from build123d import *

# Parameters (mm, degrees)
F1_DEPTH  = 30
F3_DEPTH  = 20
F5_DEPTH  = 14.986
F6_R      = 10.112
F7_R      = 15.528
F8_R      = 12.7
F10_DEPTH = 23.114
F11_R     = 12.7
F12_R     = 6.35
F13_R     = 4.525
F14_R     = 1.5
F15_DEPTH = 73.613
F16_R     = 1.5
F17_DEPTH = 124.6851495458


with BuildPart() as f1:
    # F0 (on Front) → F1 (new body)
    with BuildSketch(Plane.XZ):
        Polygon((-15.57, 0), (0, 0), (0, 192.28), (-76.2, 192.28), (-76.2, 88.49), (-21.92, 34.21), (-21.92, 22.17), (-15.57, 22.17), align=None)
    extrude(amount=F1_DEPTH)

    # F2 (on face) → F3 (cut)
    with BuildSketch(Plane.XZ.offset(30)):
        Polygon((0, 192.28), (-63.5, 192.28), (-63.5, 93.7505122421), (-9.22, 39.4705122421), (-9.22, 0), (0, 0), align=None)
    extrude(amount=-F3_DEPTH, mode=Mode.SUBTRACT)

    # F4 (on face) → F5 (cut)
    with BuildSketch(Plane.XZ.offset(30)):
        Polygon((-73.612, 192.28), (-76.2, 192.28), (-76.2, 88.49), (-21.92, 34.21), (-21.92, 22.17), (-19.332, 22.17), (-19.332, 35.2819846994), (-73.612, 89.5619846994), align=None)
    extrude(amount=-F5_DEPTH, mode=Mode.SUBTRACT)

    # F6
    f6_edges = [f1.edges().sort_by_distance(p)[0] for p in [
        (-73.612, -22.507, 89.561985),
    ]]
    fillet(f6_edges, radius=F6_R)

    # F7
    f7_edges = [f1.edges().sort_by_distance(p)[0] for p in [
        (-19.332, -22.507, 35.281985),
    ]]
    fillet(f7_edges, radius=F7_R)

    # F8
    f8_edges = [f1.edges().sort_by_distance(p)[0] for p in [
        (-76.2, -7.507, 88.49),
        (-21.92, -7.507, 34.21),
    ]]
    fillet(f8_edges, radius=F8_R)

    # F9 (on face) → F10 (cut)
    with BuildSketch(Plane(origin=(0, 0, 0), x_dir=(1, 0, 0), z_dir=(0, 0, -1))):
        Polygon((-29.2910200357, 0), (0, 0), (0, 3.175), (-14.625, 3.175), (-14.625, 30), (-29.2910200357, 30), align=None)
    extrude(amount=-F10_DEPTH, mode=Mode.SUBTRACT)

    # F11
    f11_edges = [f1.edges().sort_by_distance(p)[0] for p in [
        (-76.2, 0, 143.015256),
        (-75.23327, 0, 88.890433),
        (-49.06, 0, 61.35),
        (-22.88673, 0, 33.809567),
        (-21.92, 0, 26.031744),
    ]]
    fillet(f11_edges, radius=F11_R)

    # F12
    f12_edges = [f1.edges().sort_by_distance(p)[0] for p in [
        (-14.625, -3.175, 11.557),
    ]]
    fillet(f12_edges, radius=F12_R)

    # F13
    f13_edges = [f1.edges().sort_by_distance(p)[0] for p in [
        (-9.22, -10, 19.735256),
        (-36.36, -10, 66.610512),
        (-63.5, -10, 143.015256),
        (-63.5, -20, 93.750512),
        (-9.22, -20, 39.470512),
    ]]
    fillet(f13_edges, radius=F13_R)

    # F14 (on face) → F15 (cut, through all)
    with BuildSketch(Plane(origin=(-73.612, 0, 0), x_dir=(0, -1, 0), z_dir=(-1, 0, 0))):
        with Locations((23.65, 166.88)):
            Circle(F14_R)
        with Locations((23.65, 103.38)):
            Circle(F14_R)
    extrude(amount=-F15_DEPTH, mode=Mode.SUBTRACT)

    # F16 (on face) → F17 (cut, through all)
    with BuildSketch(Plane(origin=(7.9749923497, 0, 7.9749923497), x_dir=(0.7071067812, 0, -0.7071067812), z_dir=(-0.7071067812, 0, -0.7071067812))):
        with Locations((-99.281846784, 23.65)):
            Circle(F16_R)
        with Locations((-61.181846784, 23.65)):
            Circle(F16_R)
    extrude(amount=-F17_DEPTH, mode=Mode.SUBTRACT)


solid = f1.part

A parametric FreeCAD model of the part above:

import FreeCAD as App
import Part
import Sketcher
Q = App.Units.Quantity


def edges_at(feature, points):
    """Names of the edges that pass closest to the given points."""
    edges = feature.Shape.Edges
    near = lambda p: min(range(len(edges)), key=lambda i: edges[i].distToShape(Part.Vertex(*p))[0])
    return sorted({f"Edge{near(p) + 1}" for p in points})

doc = App.newDocument("Part")
body = doc.addObject("PartDesign::Body", "Body")

sketch1 = doc.addObject("Sketcher::SketchObject", "Sketch")
body.addObject(sketch1)
sketch1.AttachmentSupport = (doc.XZ_Plane, [""])
sketch1.MapMode = "FlatFace"
sketch1.addGeometry(Part.LineSegment(App.Vector(-15.57, 0, 0), App.Vector(0, 0, 0)), False)
sketch1.addGeometry(Part.LineSegment(App.Vector(0, 0, 0), App.Vector(0, 192.28, 0)), False)
sketch1.addGeometry(Part.LineSegment(App.Vector(0, 192.28, 0), App.Vector(-76.2, 192.28, 0)), False)
sketch1.addGeometry(Part.LineSegment(App.Vector(-76.2, 192.28, 0), App.Vector(-76.2, 88.49, 0)), False)
sketch1.addGeometry(Part.LineSegment(App.Vector(-76.2, 88.49, 0), App.Vector(-21.92, 34.21, 0)), False)
sketch1.addGeometry(Part.LineSegment(App.Vector(-21.92, 34.21, 0), App.Vector(-21.92, 22.17, 0)), False)
sketch1.addGeometry(Part.LineSegment(App.Vector(-21.92, 22.17, 0), App.Vector(-15.57, 22.17, 0)), False)
sketch1.addGeometry(Part.LineSegment(App.Vector(-15.57, 22.17, 0), App.Vector(-15.57, 0, 0)), False)
sketch1.addConstraint(Sketcher.Constraint("Coincident", 0, 2, 1, 1))
sketch1.addConstraint(Sketcher.Constraint("Coincident", 1, 2, 2, 1))
sketch1.addConstraint(Sketcher.Constraint("Coincident", 2, 2, 3, 1))
sketch1.addConstraint(Sketcher.Constraint("Coincident", 3, 2, 4, 1))
sketch1.addConstraint(Sketcher.Constraint("Coincident", 4, 2, 5, 1))
sketch1.addConstraint(Sketcher.Constraint("Coincident", 5, 2, 6, 1))
sketch1.addConstraint(Sketcher.Constraint("Coincident", 6, 2, 7, 1))
sketch1.addConstraint(Sketcher.Constraint("Coincident", 7, 2, 0, 1))
sketch1.addConstraint(Sketcher.Constraint("Horizontal", 0))
sketch1.addConstraint(Sketcher.Constraint("Vertical", 1))
sketch1.addConstraint(Sketcher.Constraint("Horizontal", 2))
sketch1.addConstraint(Sketcher.Constraint("Vertical", 3))
sketch1.addConstraint(Sketcher.Constraint("Vertical", 5))
sketch1.addConstraint(Sketcher.Constraint("Horizontal", 6))
sketch1.addConstraint(Sketcher.Constraint("Vertical", 7))
sketch1.addConstraint(Sketcher.Constraint("Coincident", 0, 2, -1, 1))
sketch1.addConstraint(Sketcher.Constraint("DistanceX", 2, 2, 2, 1, Q("3 in")))
sketch1.addConstraint(Sketcher.Constraint("Angle", 4, Q("-45 deg")))
sketch1.addConstraint(Sketcher.Constraint("DistanceX", 6, 1, 6, 2, Q("0.25 in")))
sketch1.addConstraint(Sketcher.Constraint("DistanceX", 0, 1, 0, 2, Q("15.57 mm")))
sketch1.addConstraint(Sketcher.Constraint("DistanceY", 1, 1, 1, 2, Q("192.28 mm")))
sketch1.addConstraint(Sketcher.Constraint("DistanceY", 3, 2, 3, 1, Q("103.79 mm")))
sketch1.addConstraint(Sketcher.Constraint("DistanceY", 5, 2, 5, 1, Q("12.04 mm")))
pad1 = doc.addObject("PartDesign::Pad", "Pad")
body.addObject(pad1)
pad1.Profile = sketch1
pad1.Length = 30

sketch2 = doc.addObject("Sketcher::SketchObject", "Sketch001")
body.addObject(sketch2)
sketch2.AttachmentSupport = (doc.XZ_Plane, [""])
sketch2.MapMode = "FlatFace"
sketch2.AttachmentOffset = App.Placement(App.Vector(0, 0, 30), App.Rotation())
sketch2.addGeometry(Part.LineSegment(App.Vector(0, 192.28, 0), App.Vector(-63.5, 192.28, 0)), False)
sketch2.addGeometry(Part.LineSegment(App.Vector(-63.5, 192.28, 0), App.Vector(-63.5, 93.750512, 0)), False)
sketch2.addGeometry(Part.LineSegment(App.Vector(-63.5, 93.750512, 0), App.Vector(-9.22, 39.470512, 0)), False)
sketch2.addGeometry(Part.LineSegment(App.Vector(-9.22, 39.470512, 0), App.Vector(-9.22, 0, 0)), False)
sketch2.addGeometry(Part.LineSegment(App.Vector(-9.22, 0, 0), App.Vector(0, 0, 0)), False)
sketch2.addGeometry(Part.LineSegment(App.Vector(0, 0, 0), App.Vector(0, 192.28, 0)), False)
sketch2.addConstraint(Sketcher.Constraint("Coincident", 0, 2, 1, 1))
sketch2.addConstraint(Sketcher.Constraint("Coincident", 1, 2, 2, 1))
sketch2.addConstraint(Sketcher.Constraint("Coincident", 2, 2, 3, 1))
sketch2.addConstraint(Sketcher.Constraint("Coincident", 3, 2, 4, 1))
sketch2.addConstraint(Sketcher.Constraint("Coincident", 4, 2, 5, 1))
sketch2.addConstraint(Sketcher.Constraint("Coincident", 5, 2, 0, 1))
sketch2.addConstraint(Sketcher.Constraint("Horizontal", 0))
sketch2.addConstraint(Sketcher.Constraint("Vertical", 1))
sketch2.addConstraint(Sketcher.Constraint("Vertical", 3))
sketch2.addConstraint(Sketcher.Constraint("Horizontal", 4))
sketch2.addConstraint(Sketcher.Constraint("Vertical", 5))
sketch2.addConstraint(Sketcher.Constraint("Coincident", 4, 2, -1, 1))
sketch2.addConstraint(Sketcher.Constraint("DistanceX", 0, 2, 0, 1, Q("2.5 in")))
sketch2.addConstraint(Sketcher.Constraint("Angle", 2, Q("-45 deg")))
sketch2.addConstraint(Sketcher.Constraint("DistanceX", 4, 1, 4, 2, Q("9.22 mm")))
sketch2.addConstraint(Sketcher.Constraint("DistanceY", 5, 1, 5, 2, Q("192.28 mm")))
sketch2.addConstraint(Sketcher.Constraint("DistanceY", 1, 2, 1, 1, Q("98.529488 mm")))
pocket1 = doc.addObject("PartDesign::Pocket", "Pocket")
body.addObject(pocket1)
pocket1.Profile = sketch2
pocket1.Length = 20

sketch3 = doc.addObject("Sketcher::SketchObject", "Sketch002")
body.addObject(sketch3)
sketch3.AttachmentSupport = (doc.XZ_Plane, [""])
sketch3.MapMode = "FlatFace"
sketch3.AttachmentOffset = App.Placement(App.Vector(0, 0, 30), App.Rotation())
sketch3.addGeometry(Part.LineSegment(App.Vector(-73.612, 192.28, 0), App.Vector(-76.2, 192.28, 0)), False)
sketch3.addGeometry(Part.LineSegment(App.Vector(-76.2, 192.28, 0), App.Vector(-76.2, 88.49, 0)), False)
sketch3.addGeometry(Part.LineSegment(App.Vector(-76.2, 88.49, 0), App.Vector(-21.92, 34.21, 0)), False)
sketch3.addGeometry(Part.LineSegment(App.Vector(-21.92, 34.21, 0), App.Vector(-21.92, 22.17, 0)), False)
sketch3.addGeometry(Part.LineSegment(App.Vector(-21.92, 22.17, 0), App.Vector(-19.332, 22.17, 0)), False)
sketch3.addGeometry(Part.LineSegment(App.Vector(-19.332, 22.17, 0), App.Vector(-19.332, 35.281985, 0)), False)
sketch3.addGeometry(Part.LineSegment(App.Vector(-19.332, 35.281985, 0), App.Vector(-73.612, 89.561985, 0)), False)
sketch3.addGeometry(Part.LineSegment(App.Vector(-73.612, 89.561985, 0), App.Vector(-73.612, 192.28, 0)), False)
sketch3.addConstraint(Sketcher.Constraint("Coincident", 0, 2, 1, 1))
sketch3.addConstraint(Sketcher.Constraint("Coincident", 1, 2, 2, 1))
sketch3.addConstraint(Sketcher.Constraint("Coincident", 2, 2, 3, 1))
sketch3.addConstraint(Sketcher.Constraint("Coincident", 3, 2, 4, 1))
sketch3.addConstraint(Sketcher.Constraint("Coincident", 4, 2, 5, 1))
sketch3.addConstraint(Sketcher.Constraint("Coincident", 5, 2, 6, 1))
sketch3.addConstraint(Sketcher.Constraint("Coincident", 6, 2, 7, 1))
sketch3.addConstraint(Sketcher.Constraint("Coincident", 7, 2, 0, 1))
sketch3.addConstraint(Sketcher.Constraint("Horizontal", 0))
sketch3.addConstraint(Sketcher.Constraint("Vertical", 1))
sketch3.addConstraint(Sketcher.Constraint("Vertical", 3))
sketch3.addConstraint(Sketcher.Constraint("Horizontal", 4))
sketch3.addConstraint(Sketcher.Constraint("Vertical", 5))
sketch3.addConstraint(Sketcher.Constraint("Vertical", 7))
sketch3.addConstraint(Sketcher.Constraint("Parallel", 2, 6))
sketch3.addConstraint(Sketcher.Constraint("Equal", 0, 4))
sketch3.addConstraint(Sketcher.Constraint("DistanceX", 0, 2, -1, 1, Q("3 in")))
sketch3.addConstraint(Sketcher.Constraint("Angle", 2, Q("-45 deg")))
sketch3.addConstraint(Sketcher.Constraint("DistanceX", 0, 2, 0, 1, Q("2.588 mm")))
sketch3.addConstraint(Sketcher.Constraint("DistanceY", 1, 2, 1, 1, Q("103.79 mm")))
sketch3.addConstraint(Sketcher.Constraint("DistanceY", 3, 2, 3, 1, Q("12.04 mm")))
sketch3.addConstraint(Sketcher.Constraint("DistanceY", -1, 1, 0, 2, Q("192.28 mm")))
sketch3.addConstraint(Sketcher.Constraint("DistanceX", 2, 2, -1, 1, Q("21.92 mm")))
sketch3.addConstraint(Sketcher.Constraint("DistanceY", 5, 1, 5, 2, Q("13.111985 mm")))
pocket2 = doc.addObject("PartDesign::Pocket", "Pocket001")
body.addObject(pocket2)
pocket2.Profile = sketch3
pocket2.Length = Q("0.59 in")
doc.recompute()

fillet = doc.addObject("PartDesign::Fillet", "Fillet")
body.addObject(fillet)
fillet.Base = (pocket2, edges_at(pocket2, [(-73.612, -22.507, 89.562)]))
fillet.Radius = 10.112
doc.recompute()

fillet2 = doc.addObject("PartDesign::Fillet", "Fillet001")
body.addObject(fillet2)
fillet2.Base = (fillet, edges_at(fillet, [(-19.332, -22.507, 35.282)]))
fillet2.Radius = 15.528
doc.recompute()

fillet3 = doc.addObject("PartDesign::Fillet", "Fillet002")
body.addObject(fillet3)
fillet3.Base = (fillet2, edges_at(fillet2, [(-76.2, -7.507, 88.49), (-21.92, -7.507, 34.21)]))
fillet3.Radius = Q("0.5 in")

sketch4 = doc.addObject("Sketcher::SketchObject", "Sketch003")
body.addObject(sketch4)
sketch4.AttachmentSupport = (doc.XY_Plane, [""])
sketch4.MapMode = "FlatFace"
sketch4.addGeometry(Part.LineSegment(App.Vector(-29.29102, 0, 0), App.Vector(0, 0, 0)), False)
sketch4.addGeometry(Part.LineSegment(App.Vector(0, 0, 0), App.Vector(0, -3.175, 0)), False)
sketch4.addGeometry(Part.LineSegment(App.Vector(0, -3.175, 0), App.Vector(-14.625, -3.175, 0)), False)
sketch4.addGeometry(Part.LineSegment(App.Vector(-14.625, -3.175, 0), App.Vector(-14.625, -30, 0)), False)
sketch4.addGeometry(Part.LineSegment(App.Vector(-14.625, -30, 0), App.Vector(-29.29102, -30, 0)), False)
sketch4.addGeometry(Part.LineSegment(App.Vector(-29.29102, -30, 0), App.Vector(-29.29102, 0, 0)), False)
sketch4.addConstraint(Sketcher.Constraint("Coincident", 0, 2, 1, 1))
sketch4.addConstraint(Sketcher.Constraint("Coincident", 1, 2, 2, 1))
sketch4.addConstraint(Sketcher.Constraint("Coincident", 2, 2, 3, 1))
sketch4.addConstraint(Sketcher.Constraint("Coincident", 3, 2, 4, 1))
sketch4.addConstraint(Sketcher.Constraint("Coincident", 4, 2, 5, 1))
sketch4.addConstraint(Sketcher.Constraint("Coincident", 5, 2, 0, 1))
sketch4.addConstraint(Sketcher.Constraint("Horizontal", 0))
sketch4.addConstraint(Sketcher.Constraint("Vertical", 1))
sketch4.addConstraint(Sketcher.Constraint("Horizontal", 2))
sketch4.addConstraint(Sketcher.Constraint("Vertical", 3))
sketch4.addConstraint(Sketcher.Constraint("Horizontal", 4))
sketch4.addConstraint(Sketcher.Constraint("Vertical", 5))
sketch4.addConstraint(Sketcher.Constraint("Coincident", 0, 2, -1, 1))
sketch4.addConstraint(Sketcher.Constraint("DistanceY", 1, 2, 1, 1, Q("0.125 in")))
sketch4.addConstraint(Sketcher.Constraint("DistanceX", 2, 2, 2, 1, Q("14.625 mm")))
sketch4.addConstraint(Sketcher.Constraint("DistanceY", 3, 2, 3, 1, Q("26.825 mm")))
sketch4.addConstraint(Sketcher.Constraint("DistanceX", 0, 1, 0, 2, Q("29.29102 mm")))
pocket3 = doc.addObject("PartDesign::Pocket", "Pocket002")
body.addObject(pocket3)
pocket3.Profile = sketch4
pocket3.Length = Q("0.91 in")
pocket3.Reversed = True
doc.recompute()

fillet4 = doc.addObject("PartDesign::Fillet", "Fillet003")
body.addObject(fillet4)
fillet4.Base = (pocket3, edges_at(pocket3, [
    (-76.2, 0, 143.015),
    (-75.233, 0, 88.89),
    (-49.06, 0, 61.35),
    (-22.887, 0, 33.81),
    (-21.92, 0, 26.032),
]))
fillet4.Radius = Q("0.5 in")
doc.recompute()

fillet5 = doc.addObject("PartDesign::Fillet", "Fillet004")
body.addObject(fillet5)
fillet5.Base = (fillet4, edges_at(fillet4, [(-14.625, -3.175, 11.557)]))
fillet5.Radius = Q("0.25 in")
doc.recompute()

fillet6 = doc.addObject("PartDesign::Fillet", "Fillet005")
body.addObject(fillet6)
fillet6.Base = (fillet5, edges_at(fillet5, [
    (-9.22, -10, 19.735),
    (-36.36, -10, 66.611),
    (-63.5, -10, 143.015),
    (-63.5, -20, 93.751),
    (-9.22, -20, 39.471),
]))
fillet6.Radius = 4.525

sketch5 = doc.addObject("Sketcher::SketchObject", "Sketch004")
body.addObject(sketch5)
sketch5.AttachmentSupport = (doc.YZ_Plane, [""])
sketch5.MapMode = "FlatFace"
sketch5.AttachmentOffset = App.Placement(App.Vector(0, 0, -73.612), App.Rotation())
sketch5.addGeometry(Part.Circle(App.Vector(-23.65, 166.88, 0), App.Vector(0, 0, 1), 1.5), False)
sketch5.addGeometry(Part.Circle(App.Vector(-23.65, 103.38, 0), App.Vector(0, 0, 1), 1.5), False)
sketch5.addConstraint(Sketcher.Constraint("Equal", 0, 1))
sketch5.addConstraint(Sketcher.Constraint("Vertical", 0, 3, 1, 3))
sketch5.addConstraint(Sketcher.Constraint("DistanceY", 1, 3, 0, 3, Q("2.5 in")))
sketch5.addConstraint(Sketcher.Constraint("Diameter", 0, Q("3 mm")))
sketch5.addConstraint(Sketcher.Constraint("DistanceX", 0, 3, -1, 1, Q("23.65 mm")))
sketch5.addConstraint(Sketcher.Constraint("DistanceY", -1, 1, 0, 3, Q("166.88 mm")))
pocket4 = doc.addObject("PartDesign::Pocket", "Pocket003")
body.addObject(pocket4)
pocket4.Profile = sketch5
pocket4.Type = "ThroughAll"
pocket4.Reversed = True

sketch6 = doc.addObject("Sketcher::SketchObject", "Sketch005")
body.addObject(sketch6)
sketch6.Placement = App.Placement(App.Vector(7.974992, 0, 7.974992), App.Rotation(App.Vector(0.707106781, 0, -0.707106781), App.Vector(0, -0.999999999, 0), App.Vector(-0.707106781, 0, -0.707106781), "ZXY"))
sketch6.addGeometry(Part.Circle(App.Vector(-99.281847, 23.65, 0), App.Vector(0, 0, 1), 1.5), False)
sketch6.addGeometry(Part.Circle(App.Vector(-61.181847, 23.65, 0), App.Vector(0, 0, 1), 1.5), False)
sketch6.addConstraint(Sketcher.Constraint("Equal", 0, 1))
sketch6.addConstraint(Sketcher.Constraint("Horizontal", 0, 3, 1, 3))
sketch6.addConstraint(Sketcher.Constraint("DistanceX", 0, 3, 1, 3, Q("1.5 in")))
sketch6.addConstraint(Sketcher.Constraint("Diameter", 0, Q("3 mm")))
sketch6.addConstraint(Sketcher.Constraint("DistanceY", -1, 1, 0, 3, Q("23.65 mm")))
sketch6.addConstraint(Sketcher.Constraint("DistanceX", 0, 3, -1, 1, Q("99.281847 mm")))
pocket5 = doc.addObject("PartDesign::Pocket", "Pocket004")
body.addObject(pocket5)
pocket5.Profile = sketch6
pocket5.Type = "ThroughAll"

doc.recompute()
